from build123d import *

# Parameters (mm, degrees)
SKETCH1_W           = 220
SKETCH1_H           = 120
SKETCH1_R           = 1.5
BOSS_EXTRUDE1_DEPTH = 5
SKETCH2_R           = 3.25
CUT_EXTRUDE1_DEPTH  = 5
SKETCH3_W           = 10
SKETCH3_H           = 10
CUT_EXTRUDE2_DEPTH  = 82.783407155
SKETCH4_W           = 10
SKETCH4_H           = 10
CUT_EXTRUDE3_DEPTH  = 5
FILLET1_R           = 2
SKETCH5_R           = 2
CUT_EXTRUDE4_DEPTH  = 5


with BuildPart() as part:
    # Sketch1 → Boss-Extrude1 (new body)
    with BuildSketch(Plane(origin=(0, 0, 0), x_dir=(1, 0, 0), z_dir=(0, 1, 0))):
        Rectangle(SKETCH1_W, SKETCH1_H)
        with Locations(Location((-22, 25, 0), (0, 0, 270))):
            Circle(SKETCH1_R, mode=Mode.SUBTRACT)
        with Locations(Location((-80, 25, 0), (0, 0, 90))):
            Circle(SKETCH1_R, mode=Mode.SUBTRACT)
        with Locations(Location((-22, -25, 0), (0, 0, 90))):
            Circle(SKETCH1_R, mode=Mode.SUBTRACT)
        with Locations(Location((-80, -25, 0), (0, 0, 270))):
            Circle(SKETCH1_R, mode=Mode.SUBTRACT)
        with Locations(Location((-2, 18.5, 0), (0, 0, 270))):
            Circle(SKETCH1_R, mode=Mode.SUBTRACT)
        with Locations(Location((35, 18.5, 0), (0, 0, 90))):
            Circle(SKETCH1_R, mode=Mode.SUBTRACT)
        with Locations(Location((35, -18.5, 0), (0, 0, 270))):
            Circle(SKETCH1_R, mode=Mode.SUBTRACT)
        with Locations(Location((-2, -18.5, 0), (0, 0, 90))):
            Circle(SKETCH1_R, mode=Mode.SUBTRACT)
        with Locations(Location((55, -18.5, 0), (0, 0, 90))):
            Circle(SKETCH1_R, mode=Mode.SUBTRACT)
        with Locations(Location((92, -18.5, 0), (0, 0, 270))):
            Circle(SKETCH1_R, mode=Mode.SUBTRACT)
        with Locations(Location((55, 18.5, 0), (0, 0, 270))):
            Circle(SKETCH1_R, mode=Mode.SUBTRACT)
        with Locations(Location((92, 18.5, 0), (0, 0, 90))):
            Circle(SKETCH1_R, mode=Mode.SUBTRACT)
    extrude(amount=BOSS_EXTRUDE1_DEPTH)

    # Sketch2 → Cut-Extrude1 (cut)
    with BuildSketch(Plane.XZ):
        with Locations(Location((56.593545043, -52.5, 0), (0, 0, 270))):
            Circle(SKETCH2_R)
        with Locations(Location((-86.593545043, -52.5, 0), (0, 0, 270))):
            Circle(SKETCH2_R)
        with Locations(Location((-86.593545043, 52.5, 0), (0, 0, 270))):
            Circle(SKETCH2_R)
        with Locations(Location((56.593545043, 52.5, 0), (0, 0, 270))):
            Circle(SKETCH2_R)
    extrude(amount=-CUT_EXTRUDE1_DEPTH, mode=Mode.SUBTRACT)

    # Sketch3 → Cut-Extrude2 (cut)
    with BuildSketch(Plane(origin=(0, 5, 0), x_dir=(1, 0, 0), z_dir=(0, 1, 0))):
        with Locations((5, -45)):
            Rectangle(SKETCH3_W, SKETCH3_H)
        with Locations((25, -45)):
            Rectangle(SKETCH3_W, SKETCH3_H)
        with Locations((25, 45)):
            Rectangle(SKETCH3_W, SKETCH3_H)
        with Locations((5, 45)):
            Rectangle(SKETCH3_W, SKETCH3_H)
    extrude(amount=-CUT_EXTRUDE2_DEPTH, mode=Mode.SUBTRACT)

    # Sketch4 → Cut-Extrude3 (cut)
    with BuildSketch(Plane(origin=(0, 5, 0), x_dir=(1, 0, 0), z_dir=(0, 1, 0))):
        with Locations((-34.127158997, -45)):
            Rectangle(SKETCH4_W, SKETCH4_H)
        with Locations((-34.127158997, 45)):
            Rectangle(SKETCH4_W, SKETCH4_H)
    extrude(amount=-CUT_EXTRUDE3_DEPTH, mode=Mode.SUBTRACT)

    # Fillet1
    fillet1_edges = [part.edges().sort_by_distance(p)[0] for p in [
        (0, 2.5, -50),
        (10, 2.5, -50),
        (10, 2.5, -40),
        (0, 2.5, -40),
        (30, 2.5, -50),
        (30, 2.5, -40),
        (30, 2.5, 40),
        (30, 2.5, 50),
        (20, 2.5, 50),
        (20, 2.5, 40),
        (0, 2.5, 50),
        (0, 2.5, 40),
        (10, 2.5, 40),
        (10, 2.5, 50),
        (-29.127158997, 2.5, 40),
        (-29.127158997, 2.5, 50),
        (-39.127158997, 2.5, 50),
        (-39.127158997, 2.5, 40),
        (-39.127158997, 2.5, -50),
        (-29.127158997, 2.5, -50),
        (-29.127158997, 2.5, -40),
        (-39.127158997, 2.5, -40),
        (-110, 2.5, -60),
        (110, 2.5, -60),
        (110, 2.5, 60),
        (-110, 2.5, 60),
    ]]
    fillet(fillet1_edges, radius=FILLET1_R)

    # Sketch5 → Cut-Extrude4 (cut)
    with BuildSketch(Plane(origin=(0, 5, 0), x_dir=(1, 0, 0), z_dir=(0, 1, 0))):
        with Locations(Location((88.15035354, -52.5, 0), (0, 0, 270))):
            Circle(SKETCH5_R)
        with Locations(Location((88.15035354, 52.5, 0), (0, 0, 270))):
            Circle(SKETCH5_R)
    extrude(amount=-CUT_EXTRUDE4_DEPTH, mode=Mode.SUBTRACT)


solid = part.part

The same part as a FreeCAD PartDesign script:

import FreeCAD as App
import Part
import Sketcher

V = App.Vector


def edges_at(feature, points):
    """Names of the edges that pass closest to the given points."""
    edges = feature.Shape.Edges
    near = lambda p: min(range(len(edges)), key=lambda i: edges[i].distToShape(Part.Vertex(*p))[0])
    return sorted({f"Edge{near(p) + 1}" for p in points})

doc = App.newDocument("Part")
params = doc.addObject("Spreadsheet::Sheet", "Params")
for row, (alias, value) in enumerate([
    ("sketch1_diameter", "3 mm"),
    ("sketch1_width", "220 mm"),
    ("sketch1_height", "120 mm"),
    ("pad1_length", "5 mm"),
    ("sketch2_diameter", "6.5 mm"),
    ("pocket1_length", "5 mm"),
    ("sketch3_width", "10 mm"),
    ("pocket2_length", "82.783407 mm"),
    ("sketch4_width", "10 mm"),
    ("pocket3_length", "5 mm"),
    ("fillet_radius", "2 mm"),
    ("sketch5_diameter", "4 mm"),
    ("pocket4_length", "5 mm"),
], start=1):
    params.set(f"A{row}", alias)
    params.set(f"B{row}", "=" + value)
    params.setAlias(f"B{row}", alias)

body = doc.addObject("PartDesign::Body", "Body")

# Sketch on XZ plane
sketch1 = doc.addObject("Sketcher::SketchObject", "Sketch")
body.addObject(sketch1)
sketch1.AttachmentSupport = (doc.XZ_Plane, [""])
sketch1.MapMode = "FlatFace"
sketch1.addGeometry([
    Part.LineSegment(V(-110, -60, 0), V(-110, 60, 0)),  # 0
    Part.LineSegment(V(-110, 60, 0), V(110, 60, 0)),  # 1
    Part.LineSegment(V(110, 60, 0), V(110, -60, 0)),  # 2
    Part.LineSegment(V(110, -60, 0), V(-110, -60, 0)),  # 3
    Part.Circle(V(-80, 25, 0), V(0, 0, 1), 1.5),  # 4
    Part.Circle(V(-22, 25, 0), V(0, 0, 1), 1.5),  # 5
    Part.Circle(V(-2, 18.5, 0), V(0, 0, 1), 1.5),  # 6
    Part.Circle(V(35, 18.5, 0), V(0, 0, 1), 1.5),  # 7
    Part.Circle(V(55, 18.5, 0), V(0, 0, 1), 1.5),  # 8
    Part.Circle(V(92, 18.5, 0), V(0, 0, 1), 1.5),  # 9
    Part.Circle(V(-80, -25, 0), V(0, 0, 1), 1.5),  # 10
    Part.Circle(V(-2, -18.5, 0), V(0, 0, 1), 1.5),  # 11
    Part.Circle(V(-22, -25, 0), V(0, 0, 1), 1.5),  # 12
    Part.Circle(V(35, -18.5, 0), V(0, 0, 1), 1.5),  # 13
    Part.Circle(V(55, -18.5, 0), V(0, 0, 1), 1.5),  # 14
    Part.Circle(V(92, -18.5, 0), V(0, 0, 1), 1.5),  # 15
], False)
sketch1.addConstraint([
    Sketcher.Constraint("Coincident", 0, 2, 1, 1),
    Sketcher.Constraint("Coincident", 1, 2, 2, 1),
    Sketcher.Constraint("Coincident", 2, 2, 3, 1),
    Sketcher.Constraint("Coincident", 3, 2, 0, 1),
    Sketcher.Constraint("Vertical", 0),
    Sketcher.Constraint("Horizontal", 1),
    Sketcher.Constraint("Vertical", 2),
    Sketcher.Constraint("Horizontal", 3),
    Sketcher.Constraint("Equal", 4, 5),
    Sketcher.Constraint("Equal", 5, 6),
    Sketcher.Constraint("Equal", 6, 7),
    Sketcher.Constraint("Equal", 7, 8),
    Sketcher.Constraint("Equal", 8, 9),
    Sketcher.Constraint("Equal", 9, 10),
    Sketcher.Constraint("Equal", 10, 11),
    Sketcher.Constraint("Equal", 11, 12),
    Sketcher.Constraint("Equal", 12, 13),
    Sketcher.Constraint("Equal", 13, 14),
    Sketcher.Constraint("Equal", 14, 15),
    Sketcher.Constraint("Symmetric", 0, 2, 2, 2, -1, 1),
    Sketcher.Constraint("Symmetric", 4, 3, 10, 3, -1),
    Sketcher.Constraint("Symmetric", 6, 3, 11, 3, -1),
    Sketcher.Constraint("Symmetric", 5, 3, 12, 3, -1),
    Sketcher.Constraint("Symmetric", 7, 3, 13, 3, -1),
    Sketcher.Constraint("Symmetric", 8, 3, 14, 3, -1),
    Sketcher.Constraint("Symmetric", 9, 3, 15, 3, -1),
    Sketcher.Constraint("Horizontal", 4, 3, 5, 3),
    Sketcher.Constraint("Horizontal", 6, 3, 7, 3),
    Sketcher.Constraint("Horizontal", 7, 3, 8, 3),
    Sketcher.Constraint("Horizontal", 8, 3, 9, 3),
    Sketcher.Constraint("Diameter", 4, 3.0),
    Sketcher.Constraint("DistanceX", 1, 1, 1, 2, 220.0),
    Sketcher.Constraint("DistanceY", 0, 1, 0, 2, 120.0),
    Sketcher.Constraint("DistanceX", 4, 3, -1, 1, 80.0),
    Sketcher.Constraint("DistanceY", -1, 1, 4, 3, 25.0),
    Sketcher.Constraint("DistanceX", 5, 3, -1, 1, 22.0),
    Sketcher.Constraint("DistanceX", 6, 3, -1, 1, 2.0),
    Sketcher.Constraint("DistanceX", -1, 1, 7, 3, 35.0),
    Sketcher.Constraint("DistanceX", -1, 1, 8, 3, 55.0),
    Sketcher.Constraint("DistanceX", -1, 1, 9, 3, 92.0),
    Sketcher.Constraint("DistanceY", 11, 3, 6, 3, 37.0),
])
sketch1.setExpression("Constraints[30]", "Params.sketch1_diameter")
sketch1.setExpression("Constraints[31]", "Params.sketch1_width")
sketch1.setExpression("Constraints[32]", "Params.sketch1_height")
pad1 = doc.addObject("PartDesign::Pad", "Pad")
body.addObject(pad1)
pad1.Profile = sketch1
pad1.setExpression("Length", "Params.pad1_length")
pad1.Reversed = True

# Sketch on XZ plane
sketch2 = doc.addObject("Sketcher::SketchObject", "Sketch001")
body.addObject(sketch2)
sketch2.AttachmentSupport = (doc.XZ_Plane, [""])
sketch2.MapMode = "FlatFace"
sketch2.addGeometry([
    Part.Circle(V(56.593545, -52.5, 0), V(0, 0, 1), 3.25),
    Part.Circle(V(-86.593545, -52.5, 0), V(0, 0, 1), 3.25),
    Part.Circle(V(-86.593545, 52.5, 0), V(0, 0, 1), 3.25),
    Part.Circle(V(56.593545, 52.5, 0), V(0, 0, 1), 3.25),
], False)
sketch2.addConstraint([
    Sketcher.Constraint("Equal", 0, 1),
    Sketcher.Constraint("Equal", 1, 2),
    Sketcher.Constraint("Equal", 2, 3),
    Sketcher.Constraint("Symmetric", 1, 3, 2, 3, -1),
    Sketcher.Constraint("Symmetric", 0, 3, 3, 3, -1),
    Sketcher.Constraint("Horizontal", 0, 3, 1, 3),
    Sketcher.Constraint("Diameter", 0, 6.5),
    Sketcher.Constraint("DistanceY", 1, 3, 2, 3, 105.0),
    Sketcher.Constraint("DistanceX", 1, 3, 0, 3, 143.18709),
    Sketcher.Constraint("DistanceX", -1, 1, 0, 3, 56.593545),
])
sketch2.setExpression("Constraints[6]", "Params.sketch2_diameter")
pocket1 = doc.addObject("PartDesign::Pocket", "Pocket")
body.addObject(pocket1)
pocket1.Profile = sketch2
pocket1.setExpression("Length", "Params.pocket1_length")

# Sketch on XZ plane
sketch3 = doc.addObject("Sketcher::SketchObject", "Sketch002")
body.addObject(sketch3)
sketch3.AttachmentSupport = (doc.XZ_Plane, [""])
sketch3.MapMode = "FlatFace"
sketch3.AttachmentOffset = App.Placement(V(0, 0, -5), App.Rotation())
sketch3.addGeometry([
    Part.LineSegment(V(0, 40, 0), V(0, 50, 0)),  # 0
    Part.LineSegment(V(0, 50, 0), V(10, 50, 0)),  # 1
    Part.LineSegment(V(10, 50, 0), V(10, 40, 0)),  # 2
    Part.LineSegment(V(10, 40, 0), V(0, 40, 0)),  # 3
    Part.LineSegment(V(20, 40, 0), V(20, 50, 0)),  # 4
    Part.LineSegment(V(20, 50, 0), V(30, 50, 0)),  # 5
    Part.LineSegment(V(30, 50, 0), V(30, 40, 0)),  # 6
    Part.LineSegment(V(30, 40, 0), V(20, 40, 0)),  # 7
    Part.LineSegment(V(20, -50, 0), V(20, -40, 0)),  # 8
    Part.LineSegment(V(20, -40, 0), V(30, -40, 0)),  # 9
    Part.LineSegment(V(30, -40, 0), V(30, -50, 0)),  # 10
    Part.LineSegment(V(30, -50, 0), V(20, -50, 0)),  # 11
    Part.LineSegment(V(0, -50, 0), V(0, -40, 0)),  # 12
    Part.LineSegment(V(0, -40, 0), V(10, -40, 0)),  # 13
    Part.LineSegment(V(10, -40, 0), V(10, -50, 0)),  # 14
    Part.LineSegment(V(10, -50, 0), V(0, -50, 0)),  # 15
], False)
sketch3.addConstraint([
    Sketcher.Constraint("Coincident", 0, 2, 1, 1),
    Sketcher.Constraint("Coincident", 1, 2, 2, 1),
    Sketcher.Constraint("Coincident", 2, 2, 3, 1),
    Sketcher.Constraint("Coincident", 3, 2, 0, 1),
    Sketcher.Constraint("Coincident", 4, 2, 5, 1),
    Sketcher.Constraint("Coincident", 5, 2, 6, 1),
    Sketcher.Constraint("Coincident", 6, 2, 7, 1),
    Sketcher.Constraint("Coincident", 7, 2, 4, 1),
    Sketcher.Constraint("Coincident", 8, 2, 9, 1),
    Sketcher.Constraint("Coincident", 9, 2, 10, 1),
    Sketcher.Constraint("Coincident", 10, 2, 11, 1),
    Sketcher.Constraint("Coincident", 11, 2, 8, 1),
    Sketcher.Constraint("Coincident", 12, 2, 13, 1),
    Sketcher.Constraint("Coincident", 13, 2, 14, 1),
    Sketcher.Constraint("Coincident", 14, 2, 15, 1),
    Sketcher.Constraint("Coincident", 15, 2, 12, 1),
    Sketcher.Constraint("Vertical", 0),
    Sketcher.Constraint("Horizontal", 1),
    Sketcher.Constraint("Vertical", 2),
    Sketcher.Constraint("Horizontal", 3),
    Sketcher.Constraint("Vertical", 4),
    Sketcher.Constraint("Horizontal", 5),
    Sketcher.Constraint("Vertical", 6),
    Sketcher.Constraint("Horizontal", 7),
    Sketcher.Constraint("Vertical", 8),
    Sketcher.Constraint("Horizontal", 9),
    Sketcher.Constraint("Vertical", 10),
    Sketcher.Constraint("Horizontal", 11),
    Sketcher.Constraint("Vertical", 12),
    Sketcher.Constraint("Horizontal", 13),
    Sketcher.Constraint("Vertical", 14),
    Sketcher.Constraint("Horizontal", 15),
    Sketcher.Constraint("Symmetric", 3, 2, 12, 2, -1, 1),
    Sketcher.Constraint("Symmetric", 7, 2, 8, 2, -1),
    Sketcher.Constraint("Symmetric", 5, 2, 10, 2, -1),
    Sketcher.Constraint("Symmetric", 1, 2, 14, 2, -1),
    Sketcher.Constraint("PointOnObject", 0, 2, -2),
    Sketcher.Constraint("Horizontal", 1, 2, 4, 2),
    Sketcher.Constraint("Horizontal", 3, 2, 6, 2),
    Sketcher.Constraint("Equal", 3, 5),
    Sketcher.Constraint("Equal", 15, 0),
    Sketcher.Constraint("DistanceX", 1, 1, 1, 2, 10.0),
    Sketcher.Constraint("DistanceY", -1, 1, 0, 2, 50.0),
    Sketcher.Constraint("DistanceX", -1, 1, 4, 2, 20.0),
])
sketch3.setExpression("Constraints[41]", "Params.sketch3_width")
pocket2 = doc.addObject("PartDesign::Pocket", "Pocket001")
body.addObject(pocket2)
pocket2.Profile = sketch3
pocket2.setExpression("Length", "Params.pocket2_length")
pocket2.Reversed = True

# Sketch on XZ plane
sketch4 = doc.addObject("Sketcher::SketchObject", "Sketch003")
body.addObject(sketch4)
sketch4.AttachmentSupport = (doc.XZ_Plane, [""])
sketch4.MapMode = "FlatFace"
sketch4.AttachmentOffset = App.Placement(V(0, 0, -5), App.Rotation())
sketch4.addGeometry([
    Part.LineSegment(V(-39.127159, 40, 0), V(-39.127159, 50, 0)),  # 0
    Part.LineSegment(V(-39.127159, 50, 0), V(-29.127159, 50, 0)),  # 1
    Part.LineSegment(V(-29.127159, 50, 0), V(-29.127159, 40, 0)),  # 2
    Part.LineSegment(V(-29.127159, 40, 0), V(-39.127159, 40, 0)),  # 3
    Part.LineSegment(V(-39.127159, -50, 0), V(-39.127159, -40, 0)),  # 4
    Part.LineSegment(V(-39.127159, -40, 0), V(-29.127159, -40, 0)),  # 5
    Part.LineSegment(V(-29.127159, -40, 0), V(-29.127159, -50, 0)),  # 6
    Part.LineSegment(V(-29.127159, -50, 0), V(-39.127159, -50, 0)),  # 7
], False)
sketch4.addConstraint([
    Sketcher.Constraint("Coincident", 0, 2, 1, 1),
    Sketcher.Constraint("Coincident", 1, 2, 2, 1),
    Sketcher.Constraint("Coincident", 2, 2, 3, 1),
    Sketcher.Constraint("Coincident", 3, 2, 0, 1),
    Sketcher.Constraint("Coincident", 4, 2, 5, 1),
    Sketcher.Constraint("Coincident", 5, 2, 6, 1),
    Sketcher.Constraint("Coincident", 6, 2, 7, 1),
    Sketcher.Constraint("Coincident", 7, 2, 4, 1),
    Sketcher.Constraint("Vertical", 0),
    Sketcher.Constraint("Horizontal", 1),
    Sketcher.Constraint("Vertical", 2),
    Sketcher.Constraint("Horizontal", 3),
    Sketcher.Constraint("Vertical", 4),
    Sketcher.Constraint("Horizontal", 5),
    Sketcher.Constraint("Vertical", 6),
    Sketcher.Constraint("Horizontal", 7),
    Sketcher.Constraint("Symmetric", 3, 2, 4, 2, -1),
    Sketcher.Constraint("Symmetric", 1, 2, 6, 2, -1),
    Sketcher.Constraint("Equal", 7, 0),
    Sketcher.Constraint("DistanceX", 1, 1, 1, 2, 10.0),
    Sketcher.Constraint("DistanceY", -1, 1, 0, 2, 50.0),
    Sketcher.Constraint("DistanceX", 0, 2, -1, 1, 39.127159),
])
sketch4.setExpression("Constraints[19]", "Params.sketch4_width")
pocket3 = doc.addObject("PartDesign::Pocket", "Pocket002")
body.addObject(pocket3)
pocket3.Profile = sketch4
pocket3.setExpression("Length", "Params.pocket3_length")
pocket3.Reversed = True
doc.recompute()

fillet = doc.addObject("PartDesign::Fillet", "Fillet")
body.addObject(fillet)
fillet.Base = (pocket3, edges_at(pocket3, [
    (0, 2.5, -50),
    (10, 2.5, -50),
    (10, 2.5, -40),
    (0, 2.5, -40),
    (30, 2.5, -50),
    (30, 2.5, -40),
    (30, 2.5, 40),
    (30, 2.5, 50),
    (20, 2.5, 50),
    (20, 2.5, 40),
    (0, 2.5, 50),
    (0, 2.5, 40),
    (10, 2.5, 40),
    (10, 2.5, 50),
    (-29.127, 2.5, 40),
    (-29.127, 2.5, 50),
    (-39.127, 2.5, 50),
    (-39.127, 2.5, 40),
    (-39.127, 2.5, -50),
    (-29.127, 2.5, -50),
    (-29.127, 2.5, -40),
    (-39.127, 2.5, -40),
    (-110, 2.5, -60),
    (110, 2.5, -60),
    (110, 2.5, 60),
    (-110, 2.5, 60),
]))
fillet.setExpression("Radius", "Params.fillet_radius")

# Sketch on XZ plane
sketch5 = doc.addObject("Sketcher::SketchObject", "Sketch004")
body.addObject(sketch5)
sketch5.AttachmentSupport = (doc.XZ_Plane, [""])
sketch5.MapMode = "FlatFace"
sketch5.AttachmentOffset = App.Placement(V(0, 0, -5), App.Rotation())
sketch5.addGeometry([
    Part.Circle(V(88.150354, 52.5, 0), V(0, 0, 1), 2),
    Part.Circle(V(88.150354, -52.5, 0), V(0, 0, 1), 2),
], False)
sketch5.addConstraint([
    Sketcher.Constraint("Equal", 0, 1),
    Sketcher.Constraint("Symmetric", 0, 3, 1, 3, -1),
    Sketcher.Constraint("Diameter", 0, 4.0),
    Sketcher.Constraint("DistanceY", 1, 3, 0, 3, 105.0),
    Sketcher.Constraint("DistanceX", -1, 1, 0, 3, 88.150354),
])
sketch5.setExpression("Constraints[2]", "Params.sketch5_diameter")
pocket4 = doc.addObject("PartDesign::Pocket", "Pocket003")
body.addObject(pocket4)
pocket4.Profile = sketch5
pocket4.setExpression("Length", "Params.pocket4_length")
pocket4.Reversed = True

doc.recompute()
